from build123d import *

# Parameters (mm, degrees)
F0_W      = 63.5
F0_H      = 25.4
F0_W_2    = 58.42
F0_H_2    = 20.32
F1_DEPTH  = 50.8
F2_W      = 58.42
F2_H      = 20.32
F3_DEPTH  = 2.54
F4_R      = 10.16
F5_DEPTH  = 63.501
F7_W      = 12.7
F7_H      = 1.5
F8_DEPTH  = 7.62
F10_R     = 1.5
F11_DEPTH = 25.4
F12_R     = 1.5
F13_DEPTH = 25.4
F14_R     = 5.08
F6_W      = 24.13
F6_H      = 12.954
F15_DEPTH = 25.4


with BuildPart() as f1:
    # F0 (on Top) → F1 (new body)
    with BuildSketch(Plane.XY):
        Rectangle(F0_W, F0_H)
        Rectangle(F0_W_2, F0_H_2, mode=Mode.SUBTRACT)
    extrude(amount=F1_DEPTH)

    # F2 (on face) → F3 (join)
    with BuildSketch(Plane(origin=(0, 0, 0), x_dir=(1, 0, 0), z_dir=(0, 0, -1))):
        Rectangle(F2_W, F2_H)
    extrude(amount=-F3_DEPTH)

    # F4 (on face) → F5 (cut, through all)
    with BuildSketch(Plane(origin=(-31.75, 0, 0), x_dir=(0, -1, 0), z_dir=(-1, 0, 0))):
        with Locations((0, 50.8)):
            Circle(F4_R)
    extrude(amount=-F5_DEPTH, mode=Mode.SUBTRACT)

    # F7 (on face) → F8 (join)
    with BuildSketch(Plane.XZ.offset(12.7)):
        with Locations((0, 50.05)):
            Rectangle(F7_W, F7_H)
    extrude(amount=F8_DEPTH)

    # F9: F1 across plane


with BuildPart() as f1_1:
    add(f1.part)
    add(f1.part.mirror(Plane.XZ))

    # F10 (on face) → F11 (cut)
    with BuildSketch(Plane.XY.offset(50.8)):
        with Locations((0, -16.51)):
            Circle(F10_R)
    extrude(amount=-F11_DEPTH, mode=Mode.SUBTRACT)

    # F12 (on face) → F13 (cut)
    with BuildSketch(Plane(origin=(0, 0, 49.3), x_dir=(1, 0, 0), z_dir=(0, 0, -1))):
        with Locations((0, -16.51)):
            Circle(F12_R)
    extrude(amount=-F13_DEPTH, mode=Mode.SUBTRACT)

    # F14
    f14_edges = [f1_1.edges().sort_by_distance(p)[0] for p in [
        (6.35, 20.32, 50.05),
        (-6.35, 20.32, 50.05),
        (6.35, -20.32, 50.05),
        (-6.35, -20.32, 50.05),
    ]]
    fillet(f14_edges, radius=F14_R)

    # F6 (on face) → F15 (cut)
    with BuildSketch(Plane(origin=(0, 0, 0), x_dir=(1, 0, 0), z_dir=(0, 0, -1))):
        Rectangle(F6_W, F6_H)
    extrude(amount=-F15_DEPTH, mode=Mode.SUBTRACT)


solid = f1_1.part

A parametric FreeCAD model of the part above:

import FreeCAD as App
import Part
import Sketcher
from FreeCAD import Vector
Q = App.Units.Quantity


def edges_at(feature, points):
    """Names of the edges that pass closest to the given points."""
    edges = feature.Shape.Edges
    near = lambda p: min(range(len(edges)), key=lambda i: edges[i].distToShape(Part.Vertex(*p))[0])
    return sorted({f"Edge{near(p) + 1}" for p in points})

doc = App.newDocument("Part")
body = doc.addObject("PartDesign::Body", "Body")

# Sketch on XY plane
sketch1 = body.newObject("Sketcher::SketchObject", "Sketch")
sketch1.AttachmentSupport = (doc.getObject("XY_Plane"), [""])
sketch1.MapMode = "FlatFace"
sketch1.addGeometry([
    Part.LineSegment(Vector(-32, 13, 0), Vector(-32, -13, 0)),  # 0
    Part.LineSegment(Vector(-32, -13, 0), Vector(32, -13, 0)),  # 1
    Part.LineSegment(Vector(32, -13, 0), Vector(32, 13, 0)),  # 2
    Part.LineSegment(Vector(32, 13, 0), Vector(-32, 13, 0)),  # 3
    Part.LineSegment(Vector(29, -10, 0), Vector(-29, -10, 0)),  # 4
    Part.LineSegment(Vector(-29, -10, 0), Vector(-29, 10, 0)),  # 5
    Part.LineSegment(Vector(-29, 10, 0), Vector(29, 10, 0)),  # 6
    Part.LineSegment(Vector(29, 10, 0), Vector(29, -10, 0)),  # 7
], False)
sketch1.addConstraint([
    Sketcher.Constraint("Coincident", 0, 2, 1, 1),
    Sketcher.Constraint("Coincident", 1, 2, 2, 1),
    Sketcher.Constraint("Coincident", 2, 2, 3, 1),
    Sketcher.Constraint("Coincident", 3, 2, 0, 1),
    Sketcher.Constraint("Coincident", 4, 2, 5, 1),
    Sketcher.Constraint("Coincident", 5, 2, 6, 1),
    Sketcher.Constraint("Coincident", 6, 2, 7, 1),
    Sketcher.Constraint("Coincident", 7, 2, 4, 1),
    Sketcher.Constraint("Vertical", 0),
    Sketcher.Constraint("Horizontal", 1),
    Sketcher.Constraint("Vertical", 2),
    Sketcher.Constraint("Horizontal", 3),
    Sketcher.Constraint("Horizontal", 4),
    Sketcher.Constraint("Vertical", 5),
    Sketcher.Constraint("Horizontal", 6),
    Sketcher.Constraint("Vertical", 7),
    Sketcher.Constraint("Symmetric", 0, 2, 2, 2, -1, 1),
    Sketcher.Constraint("Symmetric", 4, 2, 6, 2, -1, 1),
    Sketcher.Constraint("DistanceY", 0, 2, 0, 1, Q("1 in")),
    Sketcher.Constraint("DistanceX", 1, 1, 1, 2, Q("2.5 in")),
    Sketcher.Constraint("DistanceX", 4, 2, 4, 1, Q("2.3 in")),
    Sketcher.Constraint("DistanceY", 5, 1, 5, 2, Q("0.8 in")),
])
pad1 = body.newObject("PartDesign::Pad", "Pad")
pad1.Profile = sketch1
pad1.Length = Q("2 in")

# Sketch on XY plane
sketch2 = body.newObject("Sketcher::SketchObject", "Sketch001")
sketch2.AttachmentSupport = (doc.getObject("XY_Plane"), [""])
sketch2.MapMode = "FlatFace"
sketch2.addGeometry([
    Part.LineSegment(Vector(-29, -10, 0), Vector(-29, 10, 0)),
    Part.LineSegment(Vector(-29, 10, 0), Vector(29, 10, 0)),
    Part.LineSegment(Vector(29, 10, 0), Vector(29, -10, 0)),
    Part.LineSegment(Vector(29, -10, 0), Vector(-29, -10, 0)),
], False)
sketch2.addConstraint([
    Sketcher.Constraint("Coincident", 0, 2, 1, 1),
    Sketcher.Constraint("Coincident", 1, 2, 2, 1),
    Sketcher.Constraint("Coincident", 2, 2, 3, 1),
    Sketcher.Constraint("Coincident", 3, 2, 0, 1),
    Sketcher.Constraint("Vertical", 0),
    Sketcher.Constraint("Horizontal", 1),
    Sketcher.Constraint("Vertical", 2),
    Sketcher.Constraint("Horizontal", 3),
    Sketcher.Constraint("Symmetric", 0, 2, 2, 2, -1, 1),
    Sketcher.Constraint("DistanceX", 1, 1, 1, 2, Q("2.3 in")),
    Sketcher.Constraint("DistanceY", 0, 1, 0, 2, Q("0.8 in")),
])
pad2 = body.newObject("PartDesign::Pad", "Pad001")
pad2.Profile = sketch2
pad2.Length = Q("0.1 in")

# Sketch on YZ plane
sketch3 = body.newObject("Sketcher::SketchObject", "Sketch002")
sketch3.AttachmentSupport = (doc.getObject("YZ_Plane"), [""])
sketch3.MapMode = "FlatFace"
sketch3.AttachmentOffset = App.Placement(Vector(0, 0, -1.25 * 25.4), App.Rotation())
sketch3.addGeometry(Part.Circle(Vector(0, 51, 0), Vector(0, 0, 1), 10), False)
sketch3.addConstraint([
    Sketcher.Constraint("PointOnObject", 0, 3, -2),
    Sketcher.Constraint("Diameter", 0, Q("0.8 in")),
    Sketcher.Constraint("DistanceY", -1, 1, 0, 3, Q("2 in")),
])
pocket1 = body.newObject("PartDesign::Pocket", "Pocket")
pocket1.Profile = sketch3
pocket1.Type = "ThroughAll"
pocket1.Reversed = True

# Sketch on XZ plane
sketch4 = body.newObject("Sketcher::SketchObject", "Sketch003")
sketch4.AttachmentSupport = (doc.getObject("XZ_Plane"), [""])
sketch4.MapMode = "FlatFace"
sketch4.AttachmentOffset = App.Placement(Vector(0, 0, 0.5 * 25.4), App.Rotation())
sketch4.addGeometry([
    Part.LineSegment(Vector(-6.3, 50.8, 0), Vector(-6.3, 49.3, 0)),
    Part.LineSegment(Vector(-6.3, 49.3, 0), Vector(6.3, 49.3, 0)),
    Part.LineSegment(Vector(6.3, 49.3, 0), Vector(6.3, 50.8, 0)),
    Part.LineSegment(Vector(6.3, 50.8, 0), Vector(-6.3, 50.8, 0)),
], False)
sketch4.addConstraint([
    Sketcher.Constraint("Coincident", 0, 2, 1, 1),
    Sketcher.Constraint("Coincident", 1, 2, 2, 1),
    Sketcher.Constraint("Coincident", 2, 2, 3, 1),
    Sketcher.Constraint("Coincident", 3, 2, 0, 1),
    Sketcher.Constraint("Vertical", 0),
    Sketcher.Constraint("Horizontal", 1),
    Sketcher.Constraint("Vertical", 2),
    Sketcher.Constraint("Horizontal", 3),
    Sketcher.Constraint("DistanceX", 1, 1, 1, 2, Q("0.5 in")),
    Sketcher.Constraint("DistanceY", -1, 1, 2, 2, Q("2 in")),
    Sketcher.Constraint("DistanceX", 0, 2, -1, 1, Q("0.25 in")),
    Sketcher.Constraint("DistanceY", 0, 2, 0, 1, Q("1.5 mm")),
])
pad3 = body.newObject("PartDesign::Pad", "Pad002")
pad3.Profile = sketch4
pad3.Length = Q("0.3 in")
body2 = doc.addObject("PartDesign::Body", "Body001")
doc.recompute()

body2.BaseFeature = body
doc.recompute()

mirroring = doc.addObject("Part::Mirroring", "Mirroring")
mirroring.Source = body
mirroring.Base = Vector(0, 0, 0)
mirroring.Normal = Vector(0, -1, 0)
body3 = doc.addObject("PartDesign::Body", "Body002")
body3.BaseFeature = mirroring
boolean = body2.newObject("PartDesign::Boolean", "Boolean")
boolean.Type = "Fuse"
boolean.addObjects([body3])
doc.recompute()

# Sketch on XY plane
sketch5 = body2.newObject("Sketcher::SketchObject", "Sketch004")
sketch5.AttachmentSupport = (doc.getObject("XY_Plane001"), [""])
sketch5.MapMode = "FlatFace"
sketch5.AttachmentOffset = App.Placement(Vector(0, 0, 2 * 25.4), App.Rotation())
sketch5.addGeometry(Part.Circle(Vector(0, -16.5, 0), Vector(0, 0, 1), 1.5), False)
sketch5.addConstraint([
    Sketcher.Constraint("PointOnObject", 0, 3, -2),
    Sketcher.Constraint("Diameter", 0, Q("3 mm")),
    Sketcher.Constraint("DistanceY", 0, 3, -1, 1, Q("0.65 in")),
])
pocket2 = body2.newObject("PartDesign::Pocket", "Pocket001")
pocket2.Profile = sketch5
pocket2.Length = Q("1 in")

# Sketch on XY plane
sketch6 = body2.newObject("Sketcher::SketchObject", "Sketch005")
sketch6.AttachmentSupport = (doc.getObject("XY_Plane001"), [""])
sketch6.MapMode = "FlatFace"
sketch6.AttachmentOffset = App.Placement(Vector(0, 0, 49.3), App.Rotation())
sketch6.addGeometry(Part.Circle(Vector(0, 16.5, 0), Vector(0, 0, 1), 1.5), False)
sketch6.addConstraint([
    Sketcher.Constraint("PointOnObject", 0, 3, -2),
    Sketcher.Constraint("Diameter", 0, Q("3 mm")),
    Sketcher.Constraint("DistanceY", -1, 1, 0, 3, Q("0.65 in")),
])
pocket3 = body2.newObject("PartDesign::Pocket", "Pocket002")
pocket3.Profile = sketch6
pocket3.Length = Q("1 in")
pocket3.Reversed = True
doc.recompute()

fillet = body2.newObject("PartDesign::Fillet", "Fillet")
fillet.Base = (pocket3, edges_at(pocket3, [
    (6.35, 20.32, 50.05),
    (-6.35, 20.32, 50.05),
    (6.35, -20.32, 50.05),
    (-6.35, -20.32, 50.05),
]))
fillet.Radius = Q("0.2 in")

# Sketch on XY plane
sketch7 = body2.newObject("Sketcher::SketchObject", "Sketch006")
sketch7.AttachmentSupport = (doc.getObject("XY_Plane001"), [""])
sketch7.MapMode = "FlatFace"
sketch7.addGeometry([
    Part.LineSegment(Vector(-12, -6, 0), Vector(-12, 6, 0)),
    Part.LineSegment(Vector(-12, 6, 0), Vector(12, 6, 0)),
    Part.LineSegment(Vector(12, 6, 0), Vector(12, -6, 0)),
    Part.LineSegment(Vector(12, -6, 0), Vector(-12, -6, 0)),
], False)
sketch7.addConstraint([
    Sketcher.Constraint("Coincident", 0, 2, 1, 1),
    Sketcher.Constraint("Coincident", 1, 2, 2, 1),
    Sketcher.Constraint("Coincident", 2, 2, 3, 1),
    Sketcher.Constraint("Coincident", 3, 2, 0, 1),
    Sketcher.Constraint("Vertical", 0),
    Sketcher.Constraint("Horizontal", 1),
    Sketcher.Constraint("Vertical", 2),
    Sketcher.Constraint("Horizontal", 3),
    Sketcher.Constraint("Symmetric", 0, 2, 2, 2, -1, 1),
    Sketcher.Constraint("DistanceX", 1, 1, 1, 2, Q("0.95 in")),
    Sketcher.Constraint("DistanceY", 0, 1, 0, 2, Q("0.51 in")),
])
pocket4 = body2.newObject("PartDesign::Pocket", "Pocket003")
pocket4.Profile = sketch7
pocket4.Length = Q("1 in")
pocket4.Reversed = True
mirroring.Visibility = False

doc.recompute()
